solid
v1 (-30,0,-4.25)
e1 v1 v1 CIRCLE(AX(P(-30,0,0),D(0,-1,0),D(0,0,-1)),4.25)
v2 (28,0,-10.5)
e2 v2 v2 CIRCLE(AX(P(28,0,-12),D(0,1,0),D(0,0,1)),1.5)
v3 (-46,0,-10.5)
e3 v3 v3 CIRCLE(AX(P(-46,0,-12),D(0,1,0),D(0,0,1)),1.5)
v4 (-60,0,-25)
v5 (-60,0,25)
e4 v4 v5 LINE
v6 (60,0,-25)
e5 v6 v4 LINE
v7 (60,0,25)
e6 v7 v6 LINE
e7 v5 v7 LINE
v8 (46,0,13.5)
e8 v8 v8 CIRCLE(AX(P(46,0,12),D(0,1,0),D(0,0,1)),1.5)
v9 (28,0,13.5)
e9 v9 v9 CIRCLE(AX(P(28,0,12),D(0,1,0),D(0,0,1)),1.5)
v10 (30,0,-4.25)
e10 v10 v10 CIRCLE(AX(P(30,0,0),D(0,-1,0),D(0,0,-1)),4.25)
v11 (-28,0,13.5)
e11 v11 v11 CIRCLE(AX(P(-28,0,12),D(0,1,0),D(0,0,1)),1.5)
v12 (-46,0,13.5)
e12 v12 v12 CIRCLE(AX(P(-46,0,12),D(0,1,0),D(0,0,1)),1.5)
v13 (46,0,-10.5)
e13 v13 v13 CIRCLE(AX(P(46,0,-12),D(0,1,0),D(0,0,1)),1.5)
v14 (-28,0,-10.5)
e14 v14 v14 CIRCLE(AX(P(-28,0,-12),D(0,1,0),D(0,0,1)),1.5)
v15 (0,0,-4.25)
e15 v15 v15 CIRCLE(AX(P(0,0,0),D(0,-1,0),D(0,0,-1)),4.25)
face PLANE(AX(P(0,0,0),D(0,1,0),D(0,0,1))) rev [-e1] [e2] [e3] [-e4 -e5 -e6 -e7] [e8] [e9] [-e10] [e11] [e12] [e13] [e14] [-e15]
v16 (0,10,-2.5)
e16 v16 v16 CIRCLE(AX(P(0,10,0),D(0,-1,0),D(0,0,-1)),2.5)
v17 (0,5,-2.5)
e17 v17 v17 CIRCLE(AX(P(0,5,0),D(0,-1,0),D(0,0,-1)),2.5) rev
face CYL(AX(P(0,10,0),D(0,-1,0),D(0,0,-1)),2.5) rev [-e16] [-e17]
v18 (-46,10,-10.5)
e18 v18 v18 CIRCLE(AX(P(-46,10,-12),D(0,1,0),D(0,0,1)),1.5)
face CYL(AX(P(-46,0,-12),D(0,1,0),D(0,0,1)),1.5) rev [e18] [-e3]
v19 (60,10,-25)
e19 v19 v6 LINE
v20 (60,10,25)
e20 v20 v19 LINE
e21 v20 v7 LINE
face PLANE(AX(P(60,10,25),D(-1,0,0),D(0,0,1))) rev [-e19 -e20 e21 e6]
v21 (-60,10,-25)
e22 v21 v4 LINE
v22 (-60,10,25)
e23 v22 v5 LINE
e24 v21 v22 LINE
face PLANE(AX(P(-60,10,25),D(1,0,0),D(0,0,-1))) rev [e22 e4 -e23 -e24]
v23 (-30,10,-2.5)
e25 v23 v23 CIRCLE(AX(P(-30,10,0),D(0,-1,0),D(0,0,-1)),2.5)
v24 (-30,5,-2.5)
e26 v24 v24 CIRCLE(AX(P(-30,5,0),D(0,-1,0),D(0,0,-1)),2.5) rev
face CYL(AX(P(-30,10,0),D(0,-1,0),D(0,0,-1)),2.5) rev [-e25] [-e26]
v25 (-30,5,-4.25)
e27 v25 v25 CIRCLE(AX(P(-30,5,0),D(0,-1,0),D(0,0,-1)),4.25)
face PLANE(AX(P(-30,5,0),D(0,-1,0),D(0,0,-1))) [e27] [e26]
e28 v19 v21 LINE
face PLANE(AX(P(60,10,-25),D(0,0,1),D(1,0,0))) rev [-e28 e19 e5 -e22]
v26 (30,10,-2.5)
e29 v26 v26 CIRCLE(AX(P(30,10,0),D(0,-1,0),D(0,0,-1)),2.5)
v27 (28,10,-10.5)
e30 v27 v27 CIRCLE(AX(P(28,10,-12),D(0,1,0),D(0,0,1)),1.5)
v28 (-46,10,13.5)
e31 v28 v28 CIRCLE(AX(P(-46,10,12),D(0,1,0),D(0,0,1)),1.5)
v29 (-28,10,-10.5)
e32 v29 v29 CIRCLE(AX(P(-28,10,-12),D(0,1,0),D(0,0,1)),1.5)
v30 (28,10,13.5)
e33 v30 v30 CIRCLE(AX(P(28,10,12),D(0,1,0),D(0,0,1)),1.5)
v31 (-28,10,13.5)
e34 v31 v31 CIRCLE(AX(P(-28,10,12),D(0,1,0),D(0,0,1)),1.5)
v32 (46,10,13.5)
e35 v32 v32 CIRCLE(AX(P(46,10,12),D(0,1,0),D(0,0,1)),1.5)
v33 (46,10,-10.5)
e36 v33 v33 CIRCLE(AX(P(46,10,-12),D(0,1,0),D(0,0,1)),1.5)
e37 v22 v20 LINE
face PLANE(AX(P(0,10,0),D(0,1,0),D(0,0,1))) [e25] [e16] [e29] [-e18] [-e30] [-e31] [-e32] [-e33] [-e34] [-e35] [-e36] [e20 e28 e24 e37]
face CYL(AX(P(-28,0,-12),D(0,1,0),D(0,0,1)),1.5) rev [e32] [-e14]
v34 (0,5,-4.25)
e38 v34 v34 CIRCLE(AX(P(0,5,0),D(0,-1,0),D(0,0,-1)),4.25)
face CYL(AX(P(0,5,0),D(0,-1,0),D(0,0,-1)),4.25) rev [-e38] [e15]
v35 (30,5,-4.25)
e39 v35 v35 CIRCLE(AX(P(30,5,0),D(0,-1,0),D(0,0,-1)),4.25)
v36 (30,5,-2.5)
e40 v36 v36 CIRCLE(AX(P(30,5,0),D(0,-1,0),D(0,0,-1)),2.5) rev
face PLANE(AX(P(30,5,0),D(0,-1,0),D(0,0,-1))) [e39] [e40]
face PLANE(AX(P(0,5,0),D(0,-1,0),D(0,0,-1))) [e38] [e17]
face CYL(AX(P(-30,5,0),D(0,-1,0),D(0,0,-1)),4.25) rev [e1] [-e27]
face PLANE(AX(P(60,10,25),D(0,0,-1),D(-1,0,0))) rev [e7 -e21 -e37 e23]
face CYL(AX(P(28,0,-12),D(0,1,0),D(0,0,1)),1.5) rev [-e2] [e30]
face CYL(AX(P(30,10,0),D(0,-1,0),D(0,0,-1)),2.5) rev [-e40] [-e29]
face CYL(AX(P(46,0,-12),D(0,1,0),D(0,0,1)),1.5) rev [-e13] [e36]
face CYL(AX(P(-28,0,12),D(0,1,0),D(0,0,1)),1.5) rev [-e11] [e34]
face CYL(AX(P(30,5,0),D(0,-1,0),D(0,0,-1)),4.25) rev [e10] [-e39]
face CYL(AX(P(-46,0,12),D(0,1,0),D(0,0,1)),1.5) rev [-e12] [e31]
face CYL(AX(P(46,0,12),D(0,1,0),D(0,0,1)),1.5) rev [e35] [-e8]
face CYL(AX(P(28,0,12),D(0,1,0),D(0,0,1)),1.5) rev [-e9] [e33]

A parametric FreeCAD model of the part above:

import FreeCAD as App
import Part
import Sketcher

V = App.Vector
Q = App.Units.Quantity

doc = App.newDocument("Part")
body = doc.addObject("PartDesign::Body", "Body")

# Sketch on XZ plane
sketch1 = body.newObject("Sketcher::SketchObject", "Sketch")
sketch1.AttachmentSupport = (doc.getObject("XZ_Plane"), [""])
sketch1.MapMode = "FlatFace"
sketch1.addGeometry(Part.LineSegment(V(-60, -25, 0), V(-60, 25, 0)), False)
sketch1.addGeometry(Part.LineSegment(V(-60, 25, 0), V(60, 25, 0)), False)
sketch1.addGeometry(Part.LineSegment(V(60, 25, 0), V(60, -25, 0)), False)
sketch1.addGeometry(Part.LineSegment(V(60, -25, 0), V(-60, -25, 0)), False)
sketch1.addConstraint(Sketcher.Constraint("Coincident", 0, 2, 1, 1))
sketch1.addConstraint(Sketcher.Constraint("Coincident", 1, 2, 2, 1))
sketch1.addConstraint(Sketcher.Constraint("Coincident", 2, 2, 3, 1))
sketch1.addConstraint(Sketcher.Constraint("Coincident", 3, 2, 0, 1))
sketch1.addConstraint(Sketcher.Constraint("Vertical", 0))
sketch1.addConstraint(Sketcher.Constraint("Horizontal", 1))
sketch1.addConstraint(Sketcher.Constraint("Vertical", 2))
sketch1.addConstraint(Sketcher.Constraint("Horizontal", 3))
sketch1.addConstraint(Sketcher.Constraint("Symmetric", 0, 2, 2, 2, -1, 1))
sketch1.addConstraint(Sketcher.Constraint("DistanceX", 1, 1, 1, 2, Q("120 mm")))
sketch1.addConstraint(Sketcher.Constraint("DistanceY", 0, 1, 0, 2, Q("50 mm")))
pad1 = body.newObject("PartDesign::Pad", "Pad")
pad1.Profile = sketch1
pad1.Length = 10
pad1.Reversed = True

# Sketch on XZ plane
sketch2 = body.newObject("Sketcher::SketchObject", "Sketch001")
sketch2.AttachmentSupport = (doc.getObject("XZ_Plane"), [""])
sketch2.MapMode = "FlatFace"
sketch2.AttachmentOffset = App.Placement(V(0, 0, -10), App.Rotation())
sketch2.addGeometry(Part.Circle(V(28, 12, 0), V(0, 0, 1), 1.5), False)
sketch2.addGeometry(Part.Circle(V(28, -12, 0), V(0, 0, 1), 1.5), False)
sketch2.addGeometry(Part.Circle(V(46, 12, 0), V(0, 0, 1), 1.5), False)
sketch2.addGeometry(Part.Circle(V(46, -12, 0), V(0, 0, 1), 1.5), False)
sketch2.addGeometry(Part.Circle(V(-46, 12, 0), V(0, 0, 1), 1.5), False)
sketch2.addGeometry(Part.Circle(V(-46, -12, 0), V(0, 0, 1), 1.5), False)
sketch2.addGeometry(Part.Circle(V(-28, 12, 0), V(0, 0, 1), 1.5), False)
sketch2.addGeometry(Part.Circle(V(-28, -12, 0), V(0, 0, 1), 1.5), False)
sketch2.addConstraint(Sketcher.Constraint("Equal", 0, 1))
sketch2.addConstraint(Sketcher.Constraint("Equal", 1, 2))
sketch2.addConstraint(Sketcher.Constraint("Equal", 2, 3))
sketch2.addConstraint(Sketcher.Constraint("Equal", 3, 4))
sketch2.addConstraint(Sketcher.Constraint("Equal", 4, 5))
sketch2.addConstraint(Sketcher.Constraint("Equal", 5, 6))
sketch2.addConstraint(Sketcher.Constraint("Equal", 6, 7))
sketch2.addConstraint(Sketcher.Constraint("Symmetric", 3, 3, 4, 3, -1, 1))
sketch2.addConstraint(Sketcher.Constraint("Symmetric", 2, 3, 5, 3, -1, 1))
sketch2.addConstraint(Sketcher.Constraint("Symmetric", 1, 3, 6, 3, -1, 1))
sketch2.addConstraint(Sketcher.Constraint("Symmetric", 0, 3, 7, 3, -1, 1))
sketch2.addConstraint(Sketcher.Constraint("Symmetric", 2, 3, 4, 3, -2))
sketch2.addConstraint(Sketcher.Constraint("Symmetric", 0, 3, 6, 3, -2))
sketch2.addConstraint(Sketcher.Constraint("Horizontal", 0, 3, 2, 3))
sketch2.addConstraint(Sketcher.Constraint("Diameter", 0, Q("3 mm")))
sketch2.addConstraint(Sketcher.Constraint("DistanceX", -1, 1, 0, 3, Q("28 mm")))
sketch2.addConstraint(Sketcher.Constraint("DistanceY", -1, 1, 0, 3, Q("12 mm")))
sketch2.addConstraint(Sketcher.Constraint("DistanceX", -1, 1, 2, 3, Q("46 mm")))
pocket1 = body.newObject("PartDesign::Pocket", "Pocket")
pocket1.Profile = sketch2
pocket1.Type = "ThroughAll"
pocket1.Reversed = True

# Sketch on XZ plane
sketch3 = body.newObject("Sketcher::SketchObject", "Sketch002")
sketch3.AttachmentSupport = (doc.getObject("XZ_Plane"), [""])
sketch3.MapMode = "FlatFace"
sketch3.addGeometry(Part.Circle(V(0, 0, 0), V(0, 0, 1), 2.5), False)
sketch3.addGeometry(Part.Circle(V(30, 0, 0), V(0, 0, 1), 2.5), False)
sketch3.addGeometry(Part.Circle(V(-30, 0, 0), V(0, 0, 1), 2.5), False)
sketch3.addConstraint(Sketcher.Constraint("Coincident", 0, 3, -1, 1))
sketch3.addConstraint(Sketcher.Constraint("Equal", 0, 1))
sketch3.addConstraint(Sketcher.Constraint("Equal", 1, 2))
sketch3.addConstraint(Sketcher.Constraint("Symmetric", 1, 3, 2, 3, -1, 1))
sketch3.addConstraint(Sketcher.Constraint("PointOnObject", 1, 3, -1))
sketch3.addConstraint(Sketcher.Constraint("Diameter", 0, Q("5 mm")))
sketch3.addConstraint(Sketcher.Constraint("DistanceX", -1, 1, 1, 3, Q("30 mm")))
pocket2 = body.newObject("PartDesign::Pocket", "Pocket001")
pocket2.Profile = sketch3
pocket2.Type = "ThroughAll"

# Sketch on XZ plane
sketch4 = body.newObject("Sketcher::SketchObject", "Sketch003")
sketch4.AttachmentSupport = (doc.getObject("XZ_Plane"), [""])
sketch4.MapMode = "FlatFace"
sketch4.addGeometry(Part.Circle(V(30, 0, 0), V(0, 0, 1), 4.2), False)
sketch4.addGeometry(Part.Circle(V(0, 0, 0), V(0, 0, 1), 4.2), False)
sketch4.addGeometry(Part.Circle(V(-30, 0, 0), V(0, 0, 1), 4.2), False)
sketch4.addConstraint(Sketcher.Constraint("Coincident", 1, 3, -1, 1))
sketch4.addConstraint(Sketcher.Constraint("Equal", 0, 1))
sketch4.addConstraint(Sketcher.Constraint("Equal", 1, 2))
sketch4.addConstraint(Sketcher.Constraint("Symmetric", 0, 3, 2, 3, -1, 1))
sketch4.addConstraint(Sketcher.Constraint("PointOnObject", 0, 3, -1))
sketch4.addConstraint(Sketcher.Constraint("Diameter", 0, Q("8.5 mm")))
sketch4.addConstraint(Sketcher.Constraint("DistanceX", -1, 1, 0, 3, Q("30 mm")))
pocket3 = body.newObject("PartDesign::Pocket", "Pocket002")
pocket3.Profile = sketch4
pocket3.Length = 5

doc.recompute()
